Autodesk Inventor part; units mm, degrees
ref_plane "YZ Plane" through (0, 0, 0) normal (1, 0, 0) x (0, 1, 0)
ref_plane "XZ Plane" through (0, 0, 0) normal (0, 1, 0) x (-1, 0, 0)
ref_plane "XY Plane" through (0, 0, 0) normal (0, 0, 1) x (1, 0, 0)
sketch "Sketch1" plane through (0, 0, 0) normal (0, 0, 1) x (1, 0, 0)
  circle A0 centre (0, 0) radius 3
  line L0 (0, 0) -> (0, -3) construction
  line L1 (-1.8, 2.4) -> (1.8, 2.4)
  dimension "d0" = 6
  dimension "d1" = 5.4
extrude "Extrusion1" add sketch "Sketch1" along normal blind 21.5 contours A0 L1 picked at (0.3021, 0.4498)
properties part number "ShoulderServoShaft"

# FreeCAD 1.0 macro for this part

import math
import FreeCAD as App
import Part
import Sketcher

doc = App.newDocument("Part")
body = doc.addObject("PartDesign::Body", "Body")

# Sketch on XY plane
sketch1 = body.newObject("Sketcher::SketchObject", "Sketch")
sketch1.AttachmentSupport = (doc.getObject("XY_Plane"), [""])
sketch1.MapMode = "FlatFace"
sketch1.addGeometry(Part.ArcOfCircle(Part.Circle(App.Vector(0, 0, 0), App.Vector(0, 0, 1), 3), math.radians(127), math.radians(413)), False)
sketch1.addGeometry(Part.LineSegment(App.Vector(1.8, 2.4, 0), App.Vector(-1.8, 2.4, 0)), False)
sketch1.addConstraint(Sketcher.Constraint("Coincident", 0, 1, 1, 2))
sketch1.addConstraint(Sketcher.Constraint("Coincident", 1, 1, 0, 2))
sketch1.addConstraint(Sketcher.Constraint("Horizontal", 1))
sketch1.addConstraint(Sketcher.Constraint("Coincident", 0, 3, -1, 1))
sketch1.addConstraint(Sketcher.Constraint("Radius", 0, 3.0))
sketch1.addConstraint(Sketcher.Constraint("DistanceX", 1, 2, 1, 1, 3.6))
pad1 = body.newObject("PartDesign::Pad", "Pad")
pad1.Profile = sketch1
pad1.Length = 21.5

doc.recompute()
